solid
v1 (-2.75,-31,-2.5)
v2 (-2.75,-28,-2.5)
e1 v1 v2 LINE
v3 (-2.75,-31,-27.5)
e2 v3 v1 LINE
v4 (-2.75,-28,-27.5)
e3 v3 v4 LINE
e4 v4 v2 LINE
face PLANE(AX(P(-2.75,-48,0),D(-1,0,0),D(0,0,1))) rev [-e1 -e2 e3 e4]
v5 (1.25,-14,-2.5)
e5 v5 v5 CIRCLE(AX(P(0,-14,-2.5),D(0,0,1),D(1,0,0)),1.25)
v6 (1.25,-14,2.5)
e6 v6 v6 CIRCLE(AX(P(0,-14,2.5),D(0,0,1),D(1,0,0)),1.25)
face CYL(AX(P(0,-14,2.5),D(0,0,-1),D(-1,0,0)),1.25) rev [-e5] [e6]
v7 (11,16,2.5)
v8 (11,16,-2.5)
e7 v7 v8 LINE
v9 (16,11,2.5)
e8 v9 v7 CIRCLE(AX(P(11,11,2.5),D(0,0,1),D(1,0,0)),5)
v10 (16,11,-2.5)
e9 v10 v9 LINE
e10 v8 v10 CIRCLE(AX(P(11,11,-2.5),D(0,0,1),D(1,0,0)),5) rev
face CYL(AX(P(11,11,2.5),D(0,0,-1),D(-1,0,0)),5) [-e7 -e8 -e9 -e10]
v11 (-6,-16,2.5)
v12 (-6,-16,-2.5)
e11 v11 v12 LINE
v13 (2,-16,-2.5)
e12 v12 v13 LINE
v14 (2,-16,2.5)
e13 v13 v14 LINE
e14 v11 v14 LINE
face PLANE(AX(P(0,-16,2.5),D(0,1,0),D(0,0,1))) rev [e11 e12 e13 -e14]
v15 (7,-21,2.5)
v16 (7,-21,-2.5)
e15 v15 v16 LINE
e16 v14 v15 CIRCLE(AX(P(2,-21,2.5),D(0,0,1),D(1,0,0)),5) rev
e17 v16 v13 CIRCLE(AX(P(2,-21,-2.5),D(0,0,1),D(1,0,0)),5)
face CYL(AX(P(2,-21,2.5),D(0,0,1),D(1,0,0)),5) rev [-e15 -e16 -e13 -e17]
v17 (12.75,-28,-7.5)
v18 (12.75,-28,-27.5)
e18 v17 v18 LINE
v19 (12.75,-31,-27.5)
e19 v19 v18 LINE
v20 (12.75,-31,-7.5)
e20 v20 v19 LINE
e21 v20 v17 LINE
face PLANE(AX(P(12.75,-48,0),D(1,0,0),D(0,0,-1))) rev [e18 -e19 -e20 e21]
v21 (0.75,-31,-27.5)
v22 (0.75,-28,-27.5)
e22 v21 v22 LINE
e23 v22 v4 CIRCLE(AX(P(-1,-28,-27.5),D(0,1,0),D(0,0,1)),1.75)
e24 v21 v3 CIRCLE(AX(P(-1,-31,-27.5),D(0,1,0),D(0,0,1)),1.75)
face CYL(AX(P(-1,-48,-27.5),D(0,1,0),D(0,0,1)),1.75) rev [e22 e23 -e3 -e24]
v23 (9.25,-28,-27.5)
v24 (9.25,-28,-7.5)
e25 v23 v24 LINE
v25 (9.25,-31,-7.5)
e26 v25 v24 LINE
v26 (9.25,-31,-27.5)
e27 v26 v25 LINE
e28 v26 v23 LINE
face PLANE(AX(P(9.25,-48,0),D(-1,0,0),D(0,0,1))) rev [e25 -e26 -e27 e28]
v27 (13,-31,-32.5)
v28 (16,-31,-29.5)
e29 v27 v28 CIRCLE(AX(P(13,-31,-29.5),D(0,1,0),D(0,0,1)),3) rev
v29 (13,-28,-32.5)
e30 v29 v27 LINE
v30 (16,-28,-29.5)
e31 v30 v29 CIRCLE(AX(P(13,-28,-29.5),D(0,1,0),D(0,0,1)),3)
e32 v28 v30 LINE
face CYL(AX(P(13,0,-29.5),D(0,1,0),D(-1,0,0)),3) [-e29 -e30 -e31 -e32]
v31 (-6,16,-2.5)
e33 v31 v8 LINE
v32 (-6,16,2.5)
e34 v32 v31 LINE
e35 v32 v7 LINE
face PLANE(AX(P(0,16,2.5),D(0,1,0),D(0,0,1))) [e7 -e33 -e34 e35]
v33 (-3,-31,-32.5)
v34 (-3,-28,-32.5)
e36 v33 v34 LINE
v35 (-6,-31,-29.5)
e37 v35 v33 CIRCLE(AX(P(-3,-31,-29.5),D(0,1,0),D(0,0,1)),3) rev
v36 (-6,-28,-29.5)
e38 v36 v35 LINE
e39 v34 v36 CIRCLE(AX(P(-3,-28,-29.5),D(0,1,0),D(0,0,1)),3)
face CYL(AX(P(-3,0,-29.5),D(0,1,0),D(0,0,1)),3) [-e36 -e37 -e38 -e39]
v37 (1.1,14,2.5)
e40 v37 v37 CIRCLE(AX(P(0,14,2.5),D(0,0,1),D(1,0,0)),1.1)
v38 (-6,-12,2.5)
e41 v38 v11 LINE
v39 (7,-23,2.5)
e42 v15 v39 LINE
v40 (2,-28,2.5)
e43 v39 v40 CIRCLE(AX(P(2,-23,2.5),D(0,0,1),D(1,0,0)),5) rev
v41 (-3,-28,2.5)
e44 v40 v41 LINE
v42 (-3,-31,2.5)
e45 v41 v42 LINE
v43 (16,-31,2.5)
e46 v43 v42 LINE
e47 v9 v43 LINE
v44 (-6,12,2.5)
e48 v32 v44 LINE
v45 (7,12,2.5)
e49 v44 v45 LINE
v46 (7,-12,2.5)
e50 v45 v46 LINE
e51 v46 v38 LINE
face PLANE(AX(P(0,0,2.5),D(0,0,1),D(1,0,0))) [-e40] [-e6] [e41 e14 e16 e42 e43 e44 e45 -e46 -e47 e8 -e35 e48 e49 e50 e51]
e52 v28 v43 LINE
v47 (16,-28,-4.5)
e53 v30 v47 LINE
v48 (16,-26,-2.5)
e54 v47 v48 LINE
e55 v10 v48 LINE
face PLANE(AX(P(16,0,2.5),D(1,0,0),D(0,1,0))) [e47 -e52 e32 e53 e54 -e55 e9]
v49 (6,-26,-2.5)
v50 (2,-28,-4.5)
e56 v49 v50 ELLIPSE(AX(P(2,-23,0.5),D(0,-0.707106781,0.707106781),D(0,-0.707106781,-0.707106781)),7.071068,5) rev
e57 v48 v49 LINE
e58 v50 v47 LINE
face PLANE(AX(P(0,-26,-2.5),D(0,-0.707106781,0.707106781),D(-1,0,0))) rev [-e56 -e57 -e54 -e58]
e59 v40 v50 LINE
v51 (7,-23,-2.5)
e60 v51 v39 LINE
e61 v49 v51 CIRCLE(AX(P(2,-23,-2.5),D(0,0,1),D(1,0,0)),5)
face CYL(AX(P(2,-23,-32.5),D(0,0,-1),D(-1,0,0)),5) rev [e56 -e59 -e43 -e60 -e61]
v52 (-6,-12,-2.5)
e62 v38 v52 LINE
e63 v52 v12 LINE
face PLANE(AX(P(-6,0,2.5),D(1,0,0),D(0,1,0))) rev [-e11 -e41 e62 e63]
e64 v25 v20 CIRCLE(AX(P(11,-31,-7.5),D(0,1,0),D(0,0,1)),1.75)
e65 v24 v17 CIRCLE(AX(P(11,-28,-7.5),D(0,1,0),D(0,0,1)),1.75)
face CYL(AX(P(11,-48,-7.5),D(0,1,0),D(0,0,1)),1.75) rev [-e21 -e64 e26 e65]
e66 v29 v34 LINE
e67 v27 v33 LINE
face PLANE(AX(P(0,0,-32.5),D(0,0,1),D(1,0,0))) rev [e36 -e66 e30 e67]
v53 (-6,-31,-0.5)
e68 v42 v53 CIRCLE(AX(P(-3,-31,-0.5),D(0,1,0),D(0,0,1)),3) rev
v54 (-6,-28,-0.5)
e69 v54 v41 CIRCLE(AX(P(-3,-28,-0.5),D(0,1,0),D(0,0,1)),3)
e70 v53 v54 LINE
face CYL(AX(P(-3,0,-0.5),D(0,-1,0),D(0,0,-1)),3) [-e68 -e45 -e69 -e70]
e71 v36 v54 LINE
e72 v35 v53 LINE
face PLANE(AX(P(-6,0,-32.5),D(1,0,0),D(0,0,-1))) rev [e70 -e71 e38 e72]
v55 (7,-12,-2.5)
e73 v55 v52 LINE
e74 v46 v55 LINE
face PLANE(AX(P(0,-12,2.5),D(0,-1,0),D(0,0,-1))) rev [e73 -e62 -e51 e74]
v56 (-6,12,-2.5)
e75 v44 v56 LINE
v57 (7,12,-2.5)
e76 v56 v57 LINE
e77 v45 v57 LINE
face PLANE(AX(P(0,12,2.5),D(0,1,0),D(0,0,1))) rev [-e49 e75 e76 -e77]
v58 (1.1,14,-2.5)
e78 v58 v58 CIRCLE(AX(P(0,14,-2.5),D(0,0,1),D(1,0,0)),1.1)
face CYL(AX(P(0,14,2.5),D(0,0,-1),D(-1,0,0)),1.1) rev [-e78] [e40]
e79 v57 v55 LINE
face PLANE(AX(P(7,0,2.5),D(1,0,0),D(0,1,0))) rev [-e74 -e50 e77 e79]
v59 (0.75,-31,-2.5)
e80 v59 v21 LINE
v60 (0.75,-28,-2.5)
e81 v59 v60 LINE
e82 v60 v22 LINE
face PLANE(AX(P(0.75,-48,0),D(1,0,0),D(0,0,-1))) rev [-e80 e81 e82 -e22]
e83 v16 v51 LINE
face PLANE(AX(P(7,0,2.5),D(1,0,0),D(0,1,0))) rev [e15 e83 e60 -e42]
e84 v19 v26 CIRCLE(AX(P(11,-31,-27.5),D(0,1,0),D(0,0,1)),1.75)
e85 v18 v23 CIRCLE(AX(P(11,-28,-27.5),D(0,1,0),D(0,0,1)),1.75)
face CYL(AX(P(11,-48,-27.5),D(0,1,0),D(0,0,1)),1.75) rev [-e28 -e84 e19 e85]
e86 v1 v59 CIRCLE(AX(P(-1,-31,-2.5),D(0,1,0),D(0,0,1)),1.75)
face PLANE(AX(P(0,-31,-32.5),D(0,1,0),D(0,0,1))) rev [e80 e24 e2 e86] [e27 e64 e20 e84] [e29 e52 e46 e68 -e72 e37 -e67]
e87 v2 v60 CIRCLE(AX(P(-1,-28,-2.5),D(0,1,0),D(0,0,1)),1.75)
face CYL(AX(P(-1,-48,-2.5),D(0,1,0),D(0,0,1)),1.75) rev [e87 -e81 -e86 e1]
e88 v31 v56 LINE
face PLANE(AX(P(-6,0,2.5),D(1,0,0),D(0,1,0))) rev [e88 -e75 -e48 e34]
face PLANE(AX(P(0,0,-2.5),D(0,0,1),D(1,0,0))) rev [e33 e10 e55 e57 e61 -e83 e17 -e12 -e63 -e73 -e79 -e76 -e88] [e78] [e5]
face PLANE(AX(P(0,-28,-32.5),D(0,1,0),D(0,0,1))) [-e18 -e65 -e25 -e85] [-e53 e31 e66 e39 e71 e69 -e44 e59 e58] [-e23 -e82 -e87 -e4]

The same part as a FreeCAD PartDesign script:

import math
import FreeCAD as App
import Part
import Sketcher


def edges_at(feature, points):
    """Names of the edges that pass closest to the given points."""
    edges = feature.Shape.Edges
    near = lambda p: min(range(len(edges)), key=lambda i: edges[i].distToShape(Part.Vertex(*p))[0])
    return sorted({f"Edge{near(p) + 1}" for p in points})


def add_polygon(sketch, points):
    """Adds a closed chain of lines whose ends are joined by coincident constraints."""
    first, n = sketch.GeometryCount, len(points)
    for a, b in zip(points, points[1:] + points[:1]):
        sketch.addGeometry(Part.LineSegment(App.Vector(*a, 0), App.Vector(*b, 0)), False)
    for i in range(n):
        sketch.addConstraint(Sketcher.Constraint("Coincident", first + i, 2, first + (i + 1) % n, 1))

doc = App.newDocument("Part")
body = doc.addObject("PartDesign::Body", "Body")

sketch1 = doc.addObject("Sketcher::SketchObject", "Sketch")
body.addObject(sketch1)
sketch1.AttachmentSupport = (doc.XY_Plane, [""])
sketch1.MapMode = "FlatFace"
add_polygon(sketch1, [(7, 12), (7, -12), (-6, -12), (-6, -16), (7, -16), (7, -28), (16, -28), (16, 16), (-6, 16), (-6, 12)])
sketch1.addGeometry(Part.Circle(App.Vector(0, 14, 0), App.Vector(0, 0, 1), 1.1), False)
sketch1.addGeometry(Part.Circle(App.Vector(0, -14, 0), App.Vector(0, 0, 1), 1.2), False)
sketch1.addConstraint(Sketcher.Constraint("Vertical", 0))
sketch1.addConstraint(Sketcher.Constraint("Horizontal", 1))
sketch1.addConstraint(Sketcher.Constraint("Vertical", 2))
sketch1.addConstraint(Sketcher.Constraint("Horizontal", 3))
sketch1.addConstraint(Sketcher.Constraint("Vertical", 4))
sketch1.addConstraint(Sketcher.Constraint("Horizontal", 5))
sketch1.addConstraint(Sketcher.Constraint("Vertical", 6))
sketch1.addConstraint(Sketcher.Constraint("Horizontal", 7))
sketch1.addConstraint(Sketcher.Constraint("Vertical", 8))
sketch1.addConstraint(Sketcher.Constraint("Horizontal", 9))
sketch1.addConstraint(Sketcher.Constraint("Symmetric", 10, 3, 11, 3, -1, 1))
sketch1.addConstraint(Sketcher.Constraint("Symmetric", 2, 2, 7, 2, -1))
sketch1.addConstraint(Sketcher.Constraint("PointOnObject", 10, 3, -2))
sketch1.addConstraint(Sketcher.Constraint("Vertical", 0, 2, 3, 2))
sketch1.addConstraint(Sketcher.Constraint("Equal", 2, 8))
sketch1.addConstraint(Sketcher.Constraint("Diameter", 10, 2.2))
sketch1.addConstraint(Sketcher.Constraint("Diameter", 11, 2.5))
sketch1.addConstraint(Sketcher.Constraint("DistanceX", 1, 2, 1, 1, 13.0))
sketch1.addConstraint(Sketcher.Constraint("DistanceX", 5, 1, 5, 2, 9.0))
sketch1.addConstraint(Sketcher.Constraint("DistanceY", 0, 2, 0, 1, 24.0))
sketch1.addConstraint(Sketcher.Constraint("DistanceY", 2, 2, 2, 1, 4.0))
sketch1.addConstraint(Sketcher.Constraint("DistanceY", 4, 2, 4, 1, 12.0))
sketch1.addConstraint(Sketcher.Constraint("DistanceY", -1, 1, 10, 3, 14.0))
sketch1.addConstraint(Sketcher.Constraint("DistanceX", -1, 1, 0, 2, 7.0))
pad1 = doc.addObject("PartDesign::Pad", "Pad")
body.addObject(pad1)
pad1.Profile = sketch1
pad1.Length = 5
pad1.Midplane = True

sketch2 = doc.addObject("Sketcher::SketchObject", "Sketch001")
body.addObject(sketch2)
sketch2.AttachmentSupport = (doc.XY_Plane, [""])
sketch2.MapMode = "FlatFace"
sketch2.AttachmentOffset = App.Placement(App.Vector(0, 0, 2.5), App.Rotation())
add_polygon(sketch2, [(-6, -28), (-6, -31), (16, -31), (16, -28)])
sketch2.addConstraint(Sketcher.Constraint("Vertical", 0))
sketch2.addConstraint(Sketcher.Constraint("Horizontal", 1))
sketch2.addConstraint(Sketcher.Constraint("Vertical", 2))
sketch2.addConstraint(Sketcher.Constraint("Horizontal", 3))
sketch2.addConstraint(Sketcher.Constraint("DistanceX", 1, 1, 1, 2, 22.0))
sketch2.addConstraint(Sketcher.Constraint("DistanceY", 0, 2, 0, 1, 3.0))
sketch2.addConstraint(Sketcher.Constraint("DistanceX", 0, 2, -1, 1, 6.0))
sketch2.addConstraint(Sketcher.Constraint("DistanceY", 0, 2, -1, 1, 31.0))
pad2 = doc.addObject("PartDesign::Pad", "Pad001")
body.addObject(pad2)
pad2.Profile = sketch2
pad2.Length = 35
pad2.Reversed = True

sketch3 = doc.addObject("Sketcher::SketchObject", "Sketch002")
body.addObject(sketch3)
sketch3.AttachmentSupport = (doc.XZ_Plane, [""])
sketch3.MapMode = "FlatFace"
sketch3.AttachmentOffset = App.Placement(App.Vector(0, 0, 28), App.Rotation())
sketch3.addGeometry(Part.LineSegment(App.Vector(-2.8, -27.5, 0), App.Vector(-2.8, -2.5, 0)), False)
sketch3.addGeometry(Part.ArcOfCircle(Part.Circle(App.Vector(-1, -2.5, 0), App.Vector(0, 0, 1), 1.8), math.radians(0), math.radians(180)), False)
sketch3.addGeometry(Part.LineSegment(App.Vector(0.8, -2.5, 0), App.Vector(0.8, -27.5, 0)), False)
sketch3.addGeometry(Part.ArcOfCircle(Part.Circle(App.Vector(-1, -27.5, 0), App.Vector(0, 0, 1), 1.8), math.radians(180), math.radians(360)), False)
sketch3.addGeometry(Part.ArcOfCircle(Part.Circle(App.Vector(11, -7.5, 0), App.Vector(0, 0, 1), 1.8), math.radians(0), math.radians(180)), False)
sketch3.addGeometry(Part.LineSegment(App.Vector(12.8, -7.5, 0), App.Vector(12.8, -27.5, 0)), False)
sketch3.addGeometry(Part.ArcOfCircle(Part.Circle(App.Vector(11, -27.5, 0), App.Vector(0, 0, 1), 1.8), math.radians(180), math.radians(360)), False)
sketch3.addGeometry(Part.LineSegment(App.Vector(9.2, -27.5, 0), App.Vector(9.2, -7.5, 0)), False)
sketch3.addConstraint(Sketcher.Constraint("Tangent", 0, 2, 1, 2))
sketch3.addConstraint(Sketcher.Constraint("Tangent", 1, 1, 2, 1))
sketch3.addConstraint(Sketcher.Constraint("Tangent", 2, 2, 3, 2))
sketch3.addConstraint(Sketcher.Constraint("Tangent", 3, 1, 0, 1))
sketch3.addConstraint(Sketcher.Constraint("Tangent", 4, 1, 5, 1))
sketch3.addConstraint(Sketcher.Constraint("Tangent", 5, 2, 6, 2))
sketch3.addConstraint(Sketcher.Constraint("Tangent", 6, 1, 7, 1))
sketch3.addConstraint(Sketcher.Constraint("Tangent", 7, 2, 4, 2))
sketch3.addConstraint(Sketcher.Constraint("Vertical", 0))
sketch3.addConstraint(Sketcher.Constraint("Vertical", 2))
sketch3.addConstraint(Sketcher.Constraint("Vertical", 5))
sketch3.addConstraint(Sketcher.Constraint("Vertical", 7))
sketch3.addConstraint(Sketcher.Constraint("Equal", 3, 4))
sketch3.addConstraint(Sketcher.Constraint("Horizontal", 3, 3, 6, 3))
sketch3.addConstraint(Sketcher.Constraint("DistanceY", 0, 1, 0, 2, 25.0))
sketch3.addConstraint(Sketcher.Constraint("DistanceY", 5, 2, 5, 1, 20.0))
sketch3.addConstraint(Sketcher.Constraint("Radius", 1, 1.75))
sketch3.addConstraint(Sketcher.Constraint("DistanceX", 1, 3, -1, 1, 1.0))
sketch3.addConstraint(Sketcher.Constraint("DistanceX", -1, 1, 4, 3, 11.0))
sketch3.addConstraint(Sketcher.Constraint("DistanceY", 1, 3, -1, 1, 2.5))
pocket1 = doc.addObject("PartDesign::Pocket", "Pocket")
body.addObject(pocket1)
pocket1.Profile = sketch3
pocket1.Length = 20
pocket1.Reversed = True
doc.recompute()

fillet = doc.addObject("PartDesign::Fillet", "Fillet")
body.addObject(fillet)
fillet.Base = (pocket1, edges_at(pocket1, [(7, -28, 0), (7, -16, 0)]))
fillet.Radius = 5
doc.recompute()

fillet2 = doc.addObject("PartDesign::Fillet", "Fillet001")
body.addObject(fillet2)
fillet2.Base = (fillet, edges_at(fillet, [(-6, -29.5, 2.5), (16, -29.5, -32.5), (-6, -29.5, -32.5)]))
fillet2.Radius = 3
doc.recompute()

chamfer = doc.addObject("PartDesign::Chamfer", "Chamfer")
body.addObject(chamfer)
chamfer.Base = (fillet2, edges_at(fillet2, [(9, -28, -2.5)]))
chamfer.Size = 2
doc.recompute()

fillet3 = doc.addObject("PartDesign::Fillet", "Fillet002")
body.addObject(fillet3)
fillet3.Base = (chamfer, edges_at(chamfer, [(16, 16, 0)]))
fillet3.Radius = 5

doc.recompute()
